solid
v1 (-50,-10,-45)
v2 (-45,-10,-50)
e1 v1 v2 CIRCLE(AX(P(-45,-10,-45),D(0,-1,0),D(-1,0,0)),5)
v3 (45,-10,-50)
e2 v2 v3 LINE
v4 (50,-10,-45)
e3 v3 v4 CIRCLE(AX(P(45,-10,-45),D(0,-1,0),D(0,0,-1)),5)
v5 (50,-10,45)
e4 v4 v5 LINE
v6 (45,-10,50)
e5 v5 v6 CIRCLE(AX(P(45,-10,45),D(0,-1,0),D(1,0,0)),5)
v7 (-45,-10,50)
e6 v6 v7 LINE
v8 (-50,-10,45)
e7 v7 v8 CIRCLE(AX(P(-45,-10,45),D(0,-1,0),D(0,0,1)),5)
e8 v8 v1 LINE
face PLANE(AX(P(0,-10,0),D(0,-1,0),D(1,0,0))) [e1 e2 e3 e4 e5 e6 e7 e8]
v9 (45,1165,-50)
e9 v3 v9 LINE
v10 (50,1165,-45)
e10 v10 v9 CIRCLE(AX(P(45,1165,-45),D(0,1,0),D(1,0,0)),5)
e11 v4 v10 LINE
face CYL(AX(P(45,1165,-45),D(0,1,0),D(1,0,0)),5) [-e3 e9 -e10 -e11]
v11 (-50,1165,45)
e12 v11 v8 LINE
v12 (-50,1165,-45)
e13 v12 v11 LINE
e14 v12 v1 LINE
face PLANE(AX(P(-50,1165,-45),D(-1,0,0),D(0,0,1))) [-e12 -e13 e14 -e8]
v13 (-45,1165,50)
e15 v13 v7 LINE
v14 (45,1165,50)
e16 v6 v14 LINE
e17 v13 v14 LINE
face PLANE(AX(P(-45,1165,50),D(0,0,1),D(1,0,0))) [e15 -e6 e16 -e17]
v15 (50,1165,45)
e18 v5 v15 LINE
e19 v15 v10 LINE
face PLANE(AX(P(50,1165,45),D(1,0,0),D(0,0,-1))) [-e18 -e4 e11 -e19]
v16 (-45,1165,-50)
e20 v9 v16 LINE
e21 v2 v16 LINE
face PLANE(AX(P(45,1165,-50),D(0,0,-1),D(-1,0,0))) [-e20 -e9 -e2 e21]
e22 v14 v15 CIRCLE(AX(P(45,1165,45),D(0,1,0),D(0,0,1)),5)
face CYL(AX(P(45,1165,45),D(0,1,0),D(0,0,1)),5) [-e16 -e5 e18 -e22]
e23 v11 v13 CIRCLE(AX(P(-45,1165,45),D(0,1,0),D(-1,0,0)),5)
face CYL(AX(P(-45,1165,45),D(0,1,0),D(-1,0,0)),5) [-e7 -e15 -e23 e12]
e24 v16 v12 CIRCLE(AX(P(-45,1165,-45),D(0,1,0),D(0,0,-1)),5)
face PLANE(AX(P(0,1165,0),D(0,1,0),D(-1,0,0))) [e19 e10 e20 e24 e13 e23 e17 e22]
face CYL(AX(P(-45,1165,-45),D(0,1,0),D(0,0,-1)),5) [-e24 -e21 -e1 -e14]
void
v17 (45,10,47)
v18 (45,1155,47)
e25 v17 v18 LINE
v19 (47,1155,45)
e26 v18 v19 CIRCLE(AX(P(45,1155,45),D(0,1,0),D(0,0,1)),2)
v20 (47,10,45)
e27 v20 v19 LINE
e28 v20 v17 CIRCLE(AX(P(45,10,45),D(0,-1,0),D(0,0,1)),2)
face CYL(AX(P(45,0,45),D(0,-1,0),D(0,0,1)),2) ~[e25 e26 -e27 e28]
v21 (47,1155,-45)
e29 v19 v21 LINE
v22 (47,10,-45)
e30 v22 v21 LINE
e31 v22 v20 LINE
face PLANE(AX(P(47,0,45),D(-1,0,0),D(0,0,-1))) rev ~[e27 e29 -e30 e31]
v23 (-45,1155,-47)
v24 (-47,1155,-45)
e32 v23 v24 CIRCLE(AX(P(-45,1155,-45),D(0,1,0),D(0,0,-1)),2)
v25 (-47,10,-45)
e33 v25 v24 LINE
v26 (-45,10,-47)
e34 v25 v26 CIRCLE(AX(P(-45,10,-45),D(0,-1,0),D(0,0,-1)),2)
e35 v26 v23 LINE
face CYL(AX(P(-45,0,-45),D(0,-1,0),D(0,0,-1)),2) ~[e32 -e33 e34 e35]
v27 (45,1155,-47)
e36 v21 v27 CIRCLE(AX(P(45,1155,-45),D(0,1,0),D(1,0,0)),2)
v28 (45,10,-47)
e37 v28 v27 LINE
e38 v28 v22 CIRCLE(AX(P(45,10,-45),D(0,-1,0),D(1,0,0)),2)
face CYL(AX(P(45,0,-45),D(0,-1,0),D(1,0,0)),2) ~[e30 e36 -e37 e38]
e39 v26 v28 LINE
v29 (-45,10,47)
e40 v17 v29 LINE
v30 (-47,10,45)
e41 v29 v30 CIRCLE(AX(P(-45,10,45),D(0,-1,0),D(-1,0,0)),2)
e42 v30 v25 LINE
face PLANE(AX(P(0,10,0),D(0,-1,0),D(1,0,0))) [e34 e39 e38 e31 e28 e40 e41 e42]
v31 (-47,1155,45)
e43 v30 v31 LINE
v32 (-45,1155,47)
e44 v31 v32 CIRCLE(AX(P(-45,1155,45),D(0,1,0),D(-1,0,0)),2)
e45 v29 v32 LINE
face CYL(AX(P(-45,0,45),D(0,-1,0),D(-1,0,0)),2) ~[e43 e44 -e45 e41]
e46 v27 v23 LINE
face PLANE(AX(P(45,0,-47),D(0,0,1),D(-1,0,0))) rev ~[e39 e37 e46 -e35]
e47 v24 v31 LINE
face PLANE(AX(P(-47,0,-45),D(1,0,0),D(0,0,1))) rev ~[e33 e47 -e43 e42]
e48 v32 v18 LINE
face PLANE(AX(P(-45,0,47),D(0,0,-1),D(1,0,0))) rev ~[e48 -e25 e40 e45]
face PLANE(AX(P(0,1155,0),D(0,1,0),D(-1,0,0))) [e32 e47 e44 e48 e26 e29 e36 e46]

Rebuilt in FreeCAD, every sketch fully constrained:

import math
import FreeCAD as App
import Part
import Sketcher

doc = App.newDocument("Part")
body = doc.addObject("PartDesign::Body", "Body")

sketch1 = body.newObject("Sketcher::SketchObject", "Sketch")
sketch1.AttachmentSupport = (doc.getObject("XZ_Plane"), [""])
sketch1.MapMode = "FlatFace"
sketch1.addGeometry([
    Part.ArcOfCircle(Part.Circle(App.Vector(45, 45, 0), App.Vector(0, 0, 1), 5), math.radians(0), math.radians(90)),
    Part.LineSegment(App.Vector(45, 50, 0), App.Vector(-45, 50, 0)),
    Part.ArcOfCircle(Part.Circle(App.Vector(-45, 45, 0), App.Vector(0, 0, 1), 5), math.radians(90), math.radians(180)),
    Part.LineSegment(App.Vector(-50, 45, 0), App.Vector(-50, -45, 0)),
    Part.ArcOfCircle(Part.Circle(App.Vector(-45, -45, 0), App.Vector(0, 0, 1), 5), math.radians(180), math.radians(270)),
    Part.LineSegment(App.Vector(-45, -50, 0), App.Vector(45, -50, 0)),
    Part.ArcOfCircle(Part.Circle(App.Vector(45, -45, 0), App.Vector(0, 0, 1), 5), math.radians(-90), math.radians(0)),
    Part.LineSegment(App.Vector(50, -45, 0), App.Vector(50, 45, 0)),
    Part.LineSegment(App.Vector(-47, -45, 0), App.Vector(-47, 45, 0)),
    Part.ArcOfCircle(Part.Circle(App.Vector(-45, 45, 0), App.Vector(0, 0, 1), 2), math.radians(90), math.radians(180)),
    Part.LineSegment(App.Vector(-45, 47, 0), App.Vector(45, 47, 0)),
    Part.ArcOfCircle(Part.Circle(App.Vector(45, 45, 0), App.Vector(0, 0, 1), 2), math.radians(0), math.radians(90)),
    Part.LineSegment(App.Vector(47, 45, 0), App.Vector(47, -45, 0)),
    Part.ArcOfCircle(Part.Circle(App.Vector(45, -45, 0), App.Vector(0, 0, 1), 2), math.radians(-90), math.radians(0)),
    Part.LineSegment(App.Vector(45, -47, 0), App.Vector(-45, -47, 0)),
    Part.ArcOfCircle(Part.Circle(App.Vector(-45, -45, 0), App.Vector(0, 0, 1), 2), math.radians(180), math.radians(270)),
], False)
sketch1.addConstraint([
    Sketcher.Constraint("Tangent", 0, 2, 1, 1),
    Sketcher.Constraint("Tangent", 1, 2, 2, 1),
    Sketcher.Constraint("Tangent", 2, 2, 3, 1),
    Sketcher.Constraint("Tangent", 3, 2, 4, 1),
    Sketcher.Constraint("Tangent", 4, 2, 5, 1),
    Sketcher.Constraint("Tangent", 5, 2, 6, 1),
    Sketcher.Constraint("Tangent", 6, 2, 7, 1),
    Sketcher.Constraint("Tangent", 7, 2, 0, 1),
    Sketcher.Constraint("Tangent", 8, 2, 9, 2),
    Sketcher.Constraint("Tangent", 9, 1, 10, 1),
    Sketcher.Constraint("Tangent", 10, 2, 11, 2),
    Sketcher.Constraint("Tangent", 11, 1, 12, 1),
    Sketcher.Constraint("Tangent", 12, 2, 13, 2),
    Sketcher.Constraint("Tangent", 13, 1, 14, 1),
    Sketcher.Constraint("Tangent", 14, 2, 15, 2),
    Sketcher.Constraint("Tangent", 15, 1, 8, 1),
    Sketcher.Constraint("Horizontal", 1),
    Sketcher.Constraint("Vertical", 3),
    Sketcher.Constraint("Horizontal", 5),
    Sketcher.Constraint("Vertical", 7),
    Sketcher.Constraint("Vertical", 8),
    Sketcher.Constraint("Horizontal", 10),
    Sketcher.Constraint("Vertical", 12),
    Sketcher.Constraint("Horizontal", 14),
    Sketcher.Constraint("Coincident", 9, 3, 2, 3),
    Sketcher.Constraint("Coincident", 11, 3, 0, 3),
    Sketcher.Constraint("Coincident", 13, 3, 6, 3),
    Sketcher.Constraint("Equal", 0, 2),
    Sketcher.Constraint("Equal", 2, 4),
    Sketcher.Constraint("Equal", 4, 6),
    Sketcher.Constraint("Equal", 13, 15),
    Sketcher.Constraint("Symmetric", 0, 3, 4, 3, -1, 1),
    Sketcher.Constraint("Equal", 14, 3),
    Sketcher.Constraint("Radius", 0, 5.0),
    Sketcher.Constraint("Radius", 9, 2.0),
    Sketcher.Constraint("DistanceX", 1, 2, 1, 1, 90.0),
])
pad1 = body.newObject("PartDesign::Pad", "Pad")
pad1.Profile = sketch1
pad1.Length = 1155
pad1.Reversed = True

sketch2 = body.newObject("Sketcher::SketchObject", "Sketch001")
sketch2.AttachmentSupport = (doc.getObject("XZ_Plane"), [""])
sketch2.MapMode = "FlatFace"
sketch2.AttachmentOffset = App.Placement(App.Vector(0, 0, 10), App.Rotation())
sketch2.addGeometry([
    Part.LineSegment(App.Vector(45, 50, 0), App.Vector(-45, 50, 0)),
    Part.ArcOfCircle(Part.Circle(App.Vector(-45, 45, 0), App.Vector(0, 0, 1), 5), math.radians(90), math.radians(180)),
    Part.LineSegment(App.Vector(-50, 45, 0), App.Vector(-50, -45, 0)),
    Part.ArcOfCircle(Part.Circle(App.Vector(-45, -45, 0), App.Vector(0, 0, 1), 5), math.radians(180), math.radians(270)),
    Part.LineSegment(App.Vector(-45, -50, 0), App.Vector(45, -50, 0)),
    Part.ArcOfCircle(Part.Circle(App.Vector(45, -45, 0), App.Vector(0, 0, 1), 5), math.radians(-90), math.radians(0)),
    Part.LineSegment(App.Vector(50, -45, 0), App.Vector(50, 45, 0)),
    Part.ArcOfCircle(Part.Circle(App.Vector(45, 45, 0), App.Vector(0, 0, 1), 5), math.radians(0), math.radians(90)),
], False)
sketch2.addConstraint([
    Sketcher.Constraint("Tangent", 0, 2, 1, 1),
    Sketcher.Constraint("Tangent", 1, 2, 2, 1),
    Sketcher.Constraint("Tangent", 2, 2, 3, 1),
    Sketcher.Constraint("Tangent", 3, 2, 4, 1),
    Sketcher.Constraint("Tangent", 4, 2, 5, 1),
    Sketcher.Constraint("Tangent", 5, 2, 6, 1),
    Sketcher.Constraint("Tangent", 6, 2, 7, 1),
    Sketcher.Constraint("Tangent", 7, 2, 0, 1),
    Sketcher.Constraint("Horizontal", 0),
    Sketcher.Constraint("Vertical", 2),
    Sketcher.Constraint("Horizontal", 4),
    Sketcher.Constraint("Vertical", 6),
    Sketcher.Constraint("Equal", 1, 3),
    Sketcher.Constraint("Equal", 3, 5),
    Sketcher.Constraint("Equal", 5, 7),
    Sketcher.Constraint("Symmetric", 1, 3, 5, 3, -1, 1),
    Sketcher.Constraint("Equal", 4, 2),
    Sketcher.Constraint("Radius", 1, 5.0),
    Sketcher.Constraint("DistanceX", 0, 2, 0, 1, 90.0),
])
pad2 = body.newObject("PartDesign::Pad", "Pad001")
pad2.Profile = sketch2
pad2.Length = 20
pad2.Reversed = True

sketch3 = body.newObject("Sketcher::SketchObject", "Sketch002")
sketch3.AttachmentSupport = (doc.getObject("XZ_Plane"), [""])
sketch3.MapMode = "FlatFace"
sketch3.AttachmentOffset = App.Placement(App.Vector(0, 0, -1165), App.Rotation())
sketch3.addGeometry([
    Part.LineSegment(App.Vector(-45, 50, 0), App.Vector(45, 50, 0)),
    Part.ArcOfCircle(Part.Circle(App.Vector(45, 45, 0), App.Vector(0, 0, 1), 5), math.radians(0), math.radians(90)),
    Part.LineSegment(App.Vector(50, 45, 0), App.Vector(50, -45, 0)),
    Part.ArcOfCircle(Part.Circle(App.Vector(45, -45, 0), App.Vector(0, 0, 1), 5), math.radians(-90), math.radians(0)),
    Part.LineSegment(App.Vector(45, -50, 0), App.Vector(-45, -50, 0)),
    Part.ArcOfCircle(Part.Circle(App.Vector(-45, -45, 0), App.Vector(0, 0, 1), 5), math.radians(180), math.radians(270)),
    Part.LineSegment(App.Vector(-50, -45, 0), App.Vector(-50, 45, 0)),
    Part.ArcOfCircle(Part.Circle(App.Vector(-45, 45, 0), App.Vector(0, 0, 1), 5), math.radians(90), math.radians(180)),
], False)
sketch3.addConstraint([
    Sketcher.Constraint("Tangent", 0, 2, 1, 2),
    Sketcher.Constraint("Tangent", 1, 1, 2, 1),
    Sketcher.Constraint("Tangent", 2, 2, 3, 2),
    Sketcher.Constraint("Tangent", 3, 1, 4, 1),
    Sketcher.Constraint("Tangent", 4, 2, 5, 2),
    Sketcher.Constraint("Tangent", 5, 1, 6, 1),
    Sketcher.Constraint("Tangent", 6, 2, 7, 2),
    Sketcher.Constraint("Tangent", 7, 1, 0, 1),
    Sketcher.Constraint("Horizontal", 0),
    Sketcher.Constraint("Vertical", 2),
    Sketcher.Constraint("Horizontal", 4),
    Sketcher.Constraint("Vertical", 6),
    Sketcher.Constraint("Equal", 1, 3),
    Sketcher.Constraint("Equal", 3, 5),
    Sketcher.Constraint("Equal", 5, 7),
    Sketcher.Constraint("Symmetric", 1, 3, 5, 3, -1, 1),
    Sketcher.Constraint("Equal", 4, 2),
    Sketcher.Constraint("Radius", 1, 5.0),
    Sketcher.Constraint("DistanceX", 0, 1, 0, 2, 90.0),
])
pad3 = body.newObject("PartDesign::Pad", "Pad002")
pad3.Profile = sketch3
pad3.Length = 10

doc.recompute()
